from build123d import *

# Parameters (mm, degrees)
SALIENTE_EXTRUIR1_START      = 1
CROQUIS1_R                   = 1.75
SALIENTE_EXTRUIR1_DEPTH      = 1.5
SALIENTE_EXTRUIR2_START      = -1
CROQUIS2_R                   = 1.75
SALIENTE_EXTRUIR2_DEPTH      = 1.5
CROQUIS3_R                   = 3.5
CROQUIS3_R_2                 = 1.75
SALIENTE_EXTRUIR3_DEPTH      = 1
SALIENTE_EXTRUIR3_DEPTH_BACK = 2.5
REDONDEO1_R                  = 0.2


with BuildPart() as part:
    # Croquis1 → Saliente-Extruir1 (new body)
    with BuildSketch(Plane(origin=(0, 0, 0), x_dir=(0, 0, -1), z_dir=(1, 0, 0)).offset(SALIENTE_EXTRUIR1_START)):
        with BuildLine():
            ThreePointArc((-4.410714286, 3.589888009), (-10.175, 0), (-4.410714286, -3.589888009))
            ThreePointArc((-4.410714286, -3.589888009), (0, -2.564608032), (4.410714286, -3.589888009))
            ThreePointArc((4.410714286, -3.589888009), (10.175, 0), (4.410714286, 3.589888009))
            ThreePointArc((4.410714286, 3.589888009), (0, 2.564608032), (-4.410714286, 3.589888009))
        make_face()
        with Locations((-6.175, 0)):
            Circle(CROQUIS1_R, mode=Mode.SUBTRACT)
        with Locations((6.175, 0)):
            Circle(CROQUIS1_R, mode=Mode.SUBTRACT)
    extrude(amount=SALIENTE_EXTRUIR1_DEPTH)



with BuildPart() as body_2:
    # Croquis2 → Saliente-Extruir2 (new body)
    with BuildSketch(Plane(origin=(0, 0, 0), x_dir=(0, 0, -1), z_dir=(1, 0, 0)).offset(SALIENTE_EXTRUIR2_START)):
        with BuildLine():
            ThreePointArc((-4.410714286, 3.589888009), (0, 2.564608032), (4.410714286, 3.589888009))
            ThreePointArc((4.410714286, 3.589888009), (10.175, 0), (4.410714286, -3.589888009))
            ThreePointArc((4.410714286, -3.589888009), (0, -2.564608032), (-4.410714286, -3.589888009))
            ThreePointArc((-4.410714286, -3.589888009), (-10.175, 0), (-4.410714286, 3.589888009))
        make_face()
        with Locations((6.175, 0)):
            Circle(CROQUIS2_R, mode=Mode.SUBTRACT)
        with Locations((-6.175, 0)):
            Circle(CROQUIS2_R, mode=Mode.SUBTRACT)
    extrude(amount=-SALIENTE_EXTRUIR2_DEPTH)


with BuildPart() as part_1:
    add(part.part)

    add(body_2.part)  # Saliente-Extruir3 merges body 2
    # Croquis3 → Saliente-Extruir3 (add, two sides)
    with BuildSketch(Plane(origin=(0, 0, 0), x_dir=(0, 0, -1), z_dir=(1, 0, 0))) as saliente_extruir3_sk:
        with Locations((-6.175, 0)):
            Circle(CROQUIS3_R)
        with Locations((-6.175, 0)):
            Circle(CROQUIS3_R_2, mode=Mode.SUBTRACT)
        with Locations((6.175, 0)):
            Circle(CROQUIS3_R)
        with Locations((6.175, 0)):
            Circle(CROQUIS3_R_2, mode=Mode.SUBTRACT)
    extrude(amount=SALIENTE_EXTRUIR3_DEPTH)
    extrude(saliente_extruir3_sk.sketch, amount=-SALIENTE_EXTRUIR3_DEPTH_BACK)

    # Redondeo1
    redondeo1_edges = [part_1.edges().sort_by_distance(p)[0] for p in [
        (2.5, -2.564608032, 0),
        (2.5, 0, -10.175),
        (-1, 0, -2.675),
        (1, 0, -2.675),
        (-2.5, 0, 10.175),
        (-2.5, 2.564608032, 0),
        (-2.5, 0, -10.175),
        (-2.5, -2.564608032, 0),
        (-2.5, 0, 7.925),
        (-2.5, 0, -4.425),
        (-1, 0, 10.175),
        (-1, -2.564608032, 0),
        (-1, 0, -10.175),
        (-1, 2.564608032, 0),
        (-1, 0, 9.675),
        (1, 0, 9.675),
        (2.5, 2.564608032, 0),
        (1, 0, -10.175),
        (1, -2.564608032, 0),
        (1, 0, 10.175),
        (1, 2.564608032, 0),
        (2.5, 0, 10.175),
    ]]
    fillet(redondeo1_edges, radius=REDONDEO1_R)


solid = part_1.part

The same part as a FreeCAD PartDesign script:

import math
import FreeCAD as App
import Part
import Sketcher

V = App.Vector
Q = App.Units.Quantity


def edges_at(feature, points):
    """Names of the edges that pass closest to the given points."""
    edges = feature.Shape.Edges
    near = lambda p: min(range(len(edges)), key=lambda i: edges[i].distToShape(Part.Vertex(*p))[0])
    return sorted({f"Edge{near(p) + 1}" for p in points})

doc = App.newDocument("Part")
body = doc.addObject("PartDesign::Body", "Body")

# Sketch on YZ plane
sketch1 = body.newObject("Sketcher::SketchObject", "Sketch")
sketch1.AttachmentSupport = (doc.getObject("YZ_Plane"), [""])
sketch1.MapMode = "FlatFace"
sketch1.AttachmentOffset = App.Placement(V(0, 0, 1), App.Rotation())
sketch1.addGeometry([
    Part.ArcOfCircle(Part.Circle(V(0, 6.2, 0), V(0, 0, 1), 4), math.radians(-26), math.radians(206)),  # 0
    Part.ArcOfCircle(Part.Circle(V(-12.6, 0, 0), V(0, 0, 1), 10), math.radians(-26), math.radians(26)),  # 1
    Part.ArcOfCircle(Part.Circle(V(0, -6.2, 0), V(0, 0, 1), 4), math.radians(154), math.radians(386)),  # 2
    Part.ArcOfCircle(Part.Circle(V(12.6, 0, 0), V(0, 0, 1), 10), math.radians(154), math.radians(206)),  # 3
    Part.Circle(V(0, 6.2, 0), V(0, 0, 1), 1.8),  # 4
    Part.Circle(V(0, -6.2, 0), V(0, 0, 1), 1.8),  # 5
], False)
sketch1.addConstraint([
    Sketcher.Constraint("Tangent", 0, 2, 1, 2),
    Sketcher.Constraint("Tangent", 1, 1, 2, 1),
    Sketcher.Constraint("Tangent", 2, 2, 3, 2),
    Sketcher.Constraint("Tangent", 3, 1, 0, 1),
    Sketcher.Constraint("Coincident", 4, 3, 0, 3),
    Sketcher.Constraint("Coincident", 5, 3, 2, 3),
    Sketcher.Constraint("Equal", 0, 2),
    Sketcher.Constraint("Equal", 1, 3),
    Sketcher.Constraint("Equal", 4, 5),
    Sketcher.Constraint("Symmetric", 0, 3, 2, 3, -1, 1),
    Sketcher.Constraint("PointOnObject", 0, 3, -2),
    Sketcher.Constraint("Radius", 0, Q("4 mm")),
    Sketcher.Constraint("Radius", 1, Q("10 mm")),
    Sketcher.Constraint("Diameter", 4, Q("3.5 mm")),
    Sketcher.Constraint("DistanceY", 2, 3, 0, 3, Q("12.35 mm")),
])
pad1 = body.newObject("PartDesign::Pad", "Pad")
pad1.Profile = sketch1
pad1.Length = 1.5
body2 = doc.addObject("PartDesign::Body", "Body001")

# Sketch on YZ plane
sketch2 = body2.newObject("Sketcher::SketchObject", "Sketch001")
sketch2.AttachmentSupport = (doc.getObject("YZ_Plane001"), [""])
sketch2.MapMode = "FlatFace"
sketch2.AttachmentOffset = App.Placement(V(0, 0, -1), App.Rotation())
sketch2.addGeometry([
    Part.ArcOfCircle(Part.Circle(V(12.6, 0, 0), V(0, 0, 1), 10), math.radians(154), math.radians(206)),  # 0
    Part.ArcOfCircle(Part.Circle(V(0, 6.2, 0), V(0, 0, 1), 4), math.radians(-26), math.radians(206)),  # 1
    Part.ArcOfCircle(Part.Circle(V(-12.6, 0, 0), V(0, 0, 1), 10), math.radians(-26), math.radians(26)),  # 2
    Part.ArcOfCircle(Part.Circle(V(0, -6.2, 0), V(0, 0, 1), 4), math.radians(154), math.radians(386)),  # 3
    Part.Circle(V(0, -6.2, 0), V(0, 0, 1), 1.8),  # 4
    Part.Circle(V(0, 6.2, 0), V(0, 0, 1), 1.8),  # 5
], False)
sketch2.addConstraint([
    Sketcher.Constraint("Tangent", 0, 1, 1, 1),
    Sketcher.Constraint("Tangent", 1, 2, 2, 2),
    Sketcher.Constraint("Tangent", 2, 1, 3, 1),
    Sketcher.Constraint("Tangent", 3, 2, 0, 2),
    Sketcher.Constraint("Coincident", 4, 3, 3, 3),
    Sketcher.Constraint("Coincident", 5, 3, 1, 3),
    Sketcher.Constraint("Equal", 0, 2),
    Sketcher.Constraint("Equal", 1, 3),
    Sketcher.Constraint("Equal", 4, 5),
    Sketcher.Constraint("Symmetric", 0, 3, 2, 3, -1, 1),
    Sketcher.Constraint("PointOnObject", 0, 3, -1),
    Sketcher.Constraint("Radius", 0, Q("10 mm")),
    Sketcher.Constraint("Radius", 1, Q("4 mm")),
    Sketcher.Constraint("Diameter", 4, Q("3.5 mm")),
    Sketcher.Constraint("DistanceY", 3, 3, 1, 3, Q("12.35 mm")),
])
pad2 = body2.newObject("PartDesign::Pad", "Pad001")
pad2.Profile = sketch2
pad2.Length = 1.5
pad2.Reversed = True
body.AllowCompound = True
doc.recompute()

boolean = body.newObject("PartDesign::Boolean", "Boolean")
boolean.Type = "Fuse"
boolean.addObjects([body2])

# Sketch on YZ plane
sketch3 = body.newObject("Sketcher::SketchObject", "Sketch002")
sketch3.AttachmentSupport = (doc.getObject("YZ_Plane"), [""])
sketch3.MapMode = "FlatFace"
sketch3.addGeometry([
    Part.Circle(V(0, 6.2, 0), V(0, 0, 1), 3.5),
    Part.Circle(V(0, 6.2, 0), V(0, 0, 1), 1.8),
    Part.Circle(V(0, -6.2, 0), V(0, 0, 1), 3.5),
    Part.Circle(V(0, -6.2, 0), V(0, 0, 1), 1.8),
], False)
sketch3.addConstraint([
    Sketcher.Constraint("Coincident", 1, 3, 0, 3),
    Sketcher.Constraint("Coincident", 3, 3, 2, 3),
    Sketcher.Constraint("Equal", 0, 2),
    Sketcher.Constraint("Equal", 1, 3),
    Sketcher.Constraint("Symmetric", 0, 3, 2, 3, -1, 1),
    Sketcher.Constraint("PointOnObject", 0, 3, -2),
    Sketcher.Constraint("Diameter", 0, Q("7 mm")),
    Sketcher.Constraint("Diameter", 1, Q("3.5 mm")),
    Sketcher.Constraint("DistanceY", 2, 3, 0, 3, Q("12.35 mm")),
])
pad3 = body.newObject("PartDesign::Pad", "Pad002")
pad3.Profile = sketch3
pad3.Type = "TwoLengths"
pad3.Length = 1
pad3.Length2 = 2.5
doc.recompute()

fillet = body.newObject("PartDesign::Fillet", "Fillet")
fillet.Base = (pad3, edges_at(pad3, [
    (2.5, -2.565, 0),
    (2.5, 0, -10.175),
    (-1, 0, -2.675),
    (1, 0, -2.675),
    (-2.5, 0, 10.175),
    (-2.5, 2.565, 0),
    (-2.5, 0, -10.175),
    (-2.5, -2.565, 0),
    (-2.5, 0, 7.925),
    (-2.5, 0, -4.425),
    (-1, 0, 10.175),
    (-1, -2.565, 0),
    (-1, 0, -10.175),
    (-1, 2.565, 0),
    (-1, 0, 9.675),
    (1, 0, 9.675),
    (2.5, 2.565, 0),
    (1, 0, -10.175),
    (1, -2.565, 0),
    (1, 0, 10.175),
    (1, 2.565, 0),
    (2.5, 0, 10.175),
]))
fillet.Radius = 0.2

doc.recompute()
